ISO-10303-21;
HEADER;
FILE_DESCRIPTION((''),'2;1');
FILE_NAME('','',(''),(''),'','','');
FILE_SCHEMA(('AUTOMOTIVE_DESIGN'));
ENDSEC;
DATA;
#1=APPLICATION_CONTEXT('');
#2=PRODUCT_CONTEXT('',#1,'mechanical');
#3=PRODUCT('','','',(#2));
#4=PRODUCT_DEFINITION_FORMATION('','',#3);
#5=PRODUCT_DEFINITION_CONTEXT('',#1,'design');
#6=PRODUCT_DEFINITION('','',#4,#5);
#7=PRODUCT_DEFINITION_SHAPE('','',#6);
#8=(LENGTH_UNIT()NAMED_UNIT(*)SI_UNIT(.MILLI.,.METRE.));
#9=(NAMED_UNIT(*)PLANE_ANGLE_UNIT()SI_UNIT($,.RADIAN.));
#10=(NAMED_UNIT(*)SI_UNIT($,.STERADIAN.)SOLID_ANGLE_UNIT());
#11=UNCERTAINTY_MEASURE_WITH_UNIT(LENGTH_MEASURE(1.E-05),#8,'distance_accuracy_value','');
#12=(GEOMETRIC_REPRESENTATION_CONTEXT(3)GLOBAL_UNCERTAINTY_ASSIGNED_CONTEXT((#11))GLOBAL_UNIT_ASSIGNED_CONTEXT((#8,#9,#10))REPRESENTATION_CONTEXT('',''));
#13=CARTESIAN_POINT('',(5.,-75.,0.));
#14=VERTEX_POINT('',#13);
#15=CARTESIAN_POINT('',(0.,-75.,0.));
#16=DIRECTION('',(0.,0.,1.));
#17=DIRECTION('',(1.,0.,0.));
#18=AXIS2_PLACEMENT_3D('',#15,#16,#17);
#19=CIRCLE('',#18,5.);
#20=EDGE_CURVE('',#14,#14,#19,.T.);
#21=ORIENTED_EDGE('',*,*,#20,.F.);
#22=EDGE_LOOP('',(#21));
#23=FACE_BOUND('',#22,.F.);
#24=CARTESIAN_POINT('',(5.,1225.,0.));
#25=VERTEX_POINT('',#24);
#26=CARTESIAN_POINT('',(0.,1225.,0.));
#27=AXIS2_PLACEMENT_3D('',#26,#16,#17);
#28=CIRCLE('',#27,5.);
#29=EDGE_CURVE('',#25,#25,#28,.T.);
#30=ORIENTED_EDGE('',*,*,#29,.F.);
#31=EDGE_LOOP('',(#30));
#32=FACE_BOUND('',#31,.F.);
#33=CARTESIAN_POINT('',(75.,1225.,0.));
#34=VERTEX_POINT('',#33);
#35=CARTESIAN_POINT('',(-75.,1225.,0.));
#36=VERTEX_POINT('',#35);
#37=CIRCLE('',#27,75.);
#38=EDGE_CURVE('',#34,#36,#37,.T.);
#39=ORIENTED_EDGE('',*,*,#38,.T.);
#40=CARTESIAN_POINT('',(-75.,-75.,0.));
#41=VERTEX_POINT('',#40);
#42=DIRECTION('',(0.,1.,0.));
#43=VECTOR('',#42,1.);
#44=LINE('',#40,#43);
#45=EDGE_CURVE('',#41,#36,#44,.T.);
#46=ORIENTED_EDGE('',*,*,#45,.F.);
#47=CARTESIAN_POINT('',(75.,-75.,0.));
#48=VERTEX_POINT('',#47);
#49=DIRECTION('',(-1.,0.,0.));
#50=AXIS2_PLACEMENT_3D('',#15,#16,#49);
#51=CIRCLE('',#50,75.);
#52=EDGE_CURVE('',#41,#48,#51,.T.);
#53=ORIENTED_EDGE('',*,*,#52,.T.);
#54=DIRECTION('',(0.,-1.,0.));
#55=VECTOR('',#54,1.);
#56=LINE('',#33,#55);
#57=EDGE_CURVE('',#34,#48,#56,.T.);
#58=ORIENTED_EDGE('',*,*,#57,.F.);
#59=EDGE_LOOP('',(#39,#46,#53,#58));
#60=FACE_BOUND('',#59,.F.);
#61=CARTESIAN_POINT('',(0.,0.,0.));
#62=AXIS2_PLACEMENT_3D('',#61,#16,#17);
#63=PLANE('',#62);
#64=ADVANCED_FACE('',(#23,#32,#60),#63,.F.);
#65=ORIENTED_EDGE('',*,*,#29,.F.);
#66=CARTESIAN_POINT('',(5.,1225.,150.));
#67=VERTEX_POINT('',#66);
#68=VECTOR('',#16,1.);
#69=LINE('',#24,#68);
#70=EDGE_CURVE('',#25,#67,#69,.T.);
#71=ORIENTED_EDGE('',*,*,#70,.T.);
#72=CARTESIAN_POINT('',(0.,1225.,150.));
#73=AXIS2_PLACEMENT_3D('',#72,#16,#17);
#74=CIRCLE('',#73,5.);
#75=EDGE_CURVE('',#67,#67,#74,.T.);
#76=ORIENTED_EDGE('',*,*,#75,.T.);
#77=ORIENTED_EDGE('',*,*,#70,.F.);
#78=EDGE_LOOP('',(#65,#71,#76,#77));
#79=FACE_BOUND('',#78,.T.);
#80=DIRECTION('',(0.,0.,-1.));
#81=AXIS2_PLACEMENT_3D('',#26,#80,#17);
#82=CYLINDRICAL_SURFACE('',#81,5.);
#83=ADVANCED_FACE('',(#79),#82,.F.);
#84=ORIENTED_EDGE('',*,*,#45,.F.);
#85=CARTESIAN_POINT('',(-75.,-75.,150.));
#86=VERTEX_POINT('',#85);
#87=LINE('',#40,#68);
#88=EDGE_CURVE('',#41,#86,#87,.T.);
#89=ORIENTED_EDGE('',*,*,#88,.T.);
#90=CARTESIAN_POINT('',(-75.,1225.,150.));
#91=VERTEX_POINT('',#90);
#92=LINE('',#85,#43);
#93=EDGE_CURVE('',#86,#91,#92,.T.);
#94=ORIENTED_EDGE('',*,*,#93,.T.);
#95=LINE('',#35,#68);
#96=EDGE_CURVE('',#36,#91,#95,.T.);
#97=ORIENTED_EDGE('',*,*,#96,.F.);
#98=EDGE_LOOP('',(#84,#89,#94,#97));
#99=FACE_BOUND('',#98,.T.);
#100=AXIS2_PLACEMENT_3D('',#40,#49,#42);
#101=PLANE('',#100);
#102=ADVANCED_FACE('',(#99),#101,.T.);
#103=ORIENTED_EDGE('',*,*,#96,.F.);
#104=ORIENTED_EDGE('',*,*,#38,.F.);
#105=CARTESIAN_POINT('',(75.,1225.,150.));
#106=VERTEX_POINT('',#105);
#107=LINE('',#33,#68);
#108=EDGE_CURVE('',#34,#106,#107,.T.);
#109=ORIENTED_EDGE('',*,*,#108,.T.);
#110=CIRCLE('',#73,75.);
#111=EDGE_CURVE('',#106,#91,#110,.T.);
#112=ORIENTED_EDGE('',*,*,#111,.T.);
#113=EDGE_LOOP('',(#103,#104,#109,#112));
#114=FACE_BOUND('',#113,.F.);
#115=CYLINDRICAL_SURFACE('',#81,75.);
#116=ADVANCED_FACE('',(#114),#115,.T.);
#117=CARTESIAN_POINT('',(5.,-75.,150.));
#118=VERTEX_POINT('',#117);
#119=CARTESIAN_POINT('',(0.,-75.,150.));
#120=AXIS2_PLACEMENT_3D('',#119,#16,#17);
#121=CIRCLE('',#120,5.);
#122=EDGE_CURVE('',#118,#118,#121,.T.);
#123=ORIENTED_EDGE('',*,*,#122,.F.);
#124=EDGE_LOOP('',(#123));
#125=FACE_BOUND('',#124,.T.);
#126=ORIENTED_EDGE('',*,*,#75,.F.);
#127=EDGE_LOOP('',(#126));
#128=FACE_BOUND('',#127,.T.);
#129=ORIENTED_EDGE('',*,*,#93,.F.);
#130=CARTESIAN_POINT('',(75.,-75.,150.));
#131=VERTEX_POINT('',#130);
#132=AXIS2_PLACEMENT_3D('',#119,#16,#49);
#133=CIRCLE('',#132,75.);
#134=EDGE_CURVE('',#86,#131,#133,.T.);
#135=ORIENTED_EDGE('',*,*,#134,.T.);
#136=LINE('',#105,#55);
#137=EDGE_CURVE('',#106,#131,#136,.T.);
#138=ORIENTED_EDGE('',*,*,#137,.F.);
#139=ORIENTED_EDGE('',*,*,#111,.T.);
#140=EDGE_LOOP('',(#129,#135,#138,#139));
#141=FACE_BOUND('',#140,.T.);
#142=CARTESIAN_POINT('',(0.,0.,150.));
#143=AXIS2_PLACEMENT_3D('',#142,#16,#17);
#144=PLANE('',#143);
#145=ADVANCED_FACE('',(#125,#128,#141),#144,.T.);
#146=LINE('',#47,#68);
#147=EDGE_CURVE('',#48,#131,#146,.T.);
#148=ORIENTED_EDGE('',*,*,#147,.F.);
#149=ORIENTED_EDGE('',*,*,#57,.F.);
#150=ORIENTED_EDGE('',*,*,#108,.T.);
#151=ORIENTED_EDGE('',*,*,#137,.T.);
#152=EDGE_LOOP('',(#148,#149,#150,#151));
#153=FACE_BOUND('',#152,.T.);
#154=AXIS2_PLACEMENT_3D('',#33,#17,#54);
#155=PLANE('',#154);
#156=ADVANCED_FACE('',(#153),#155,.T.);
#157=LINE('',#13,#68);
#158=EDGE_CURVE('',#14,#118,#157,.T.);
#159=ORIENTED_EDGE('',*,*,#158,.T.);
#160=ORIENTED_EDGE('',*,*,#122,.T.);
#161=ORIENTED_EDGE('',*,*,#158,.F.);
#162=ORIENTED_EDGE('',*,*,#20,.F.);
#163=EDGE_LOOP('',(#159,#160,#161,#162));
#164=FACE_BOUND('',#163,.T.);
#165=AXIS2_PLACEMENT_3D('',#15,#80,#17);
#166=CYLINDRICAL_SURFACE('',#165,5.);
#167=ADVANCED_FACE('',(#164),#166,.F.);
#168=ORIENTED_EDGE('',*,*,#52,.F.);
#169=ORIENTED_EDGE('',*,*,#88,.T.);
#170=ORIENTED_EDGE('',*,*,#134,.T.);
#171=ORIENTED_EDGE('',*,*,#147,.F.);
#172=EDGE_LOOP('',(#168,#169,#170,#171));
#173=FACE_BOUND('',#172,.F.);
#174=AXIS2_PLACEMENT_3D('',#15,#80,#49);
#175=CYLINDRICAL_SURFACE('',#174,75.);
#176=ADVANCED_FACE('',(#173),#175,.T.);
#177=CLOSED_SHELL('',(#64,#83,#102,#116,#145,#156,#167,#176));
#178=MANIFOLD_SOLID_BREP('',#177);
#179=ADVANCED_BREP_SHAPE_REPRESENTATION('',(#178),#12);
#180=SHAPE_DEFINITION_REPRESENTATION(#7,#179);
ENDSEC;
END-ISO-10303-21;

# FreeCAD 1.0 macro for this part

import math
import FreeCAD as App
import Part
import Sketcher
Q = App.Units.Quantity

doc = App.newDocument("Part")
body = doc.addObject("PartDesign::Body", "Body")

sketch1 = doc.addObject("Sketcher::SketchObject", "Sketch")
body.addObject(sketch1)
sketch1.AttachmentSupport = (doc.XY_Plane, [""])
sketch1.MapMode = "FlatFace"
sketch1.addGeometry(Part.LineSegment(App.Vector(-75, 1225, 0), App.Vector(-75, -75, 0)), False)
sketch1.addGeometry(Part.ArcOfCircle(Part.Circle(App.Vector(0, -75, 0), App.Vector(0, 0, 1), 75), math.radians(180), math.radians(360)), False)
sketch1.addGeometry(Part.LineSegment(App.Vector(75, -75, 0), App.Vector(75, 1225, 0)), False)
sketch1.addGeometry(Part.ArcOfCircle(Part.Circle(App.Vector(0, 1225, 0), App.Vector(0, 0, 1), 75), math.radians(0), math.radians(180)), False)
sketch1.addGeometry(Part.Circle(App.Vector(0, -75, 0), App.Vector(0, 0, 1), 5), False)
sketch1.addGeometry(Part.Circle(App.Vector(0, 1225, 0), App.Vector(0, 0, 1), 5), False)
sketch1.addConstraint(Sketcher.Constraint("Tangent", 0, 2, 1, 1))
sketch1.addConstraint(Sketcher.Constraint("Tangent", 1, 2, 2, 1))
sketch1.addConstraint(Sketcher.Constraint("Tangent", 2, 2, 3, 1))
sketch1.addConstraint(Sketcher.Constraint("Tangent", 3, 2, 0, 1))
sketch1.addConstraint(Sketcher.Constraint("Vertical", 0))
sketch1.addConstraint(Sketcher.Constraint("Vertical", 2))
sketch1.addConstraint(Sketcher.Constraint("Coincident", 4, 3, 1, 3))
sketch1.addConstraint(Sketcher.Constraint("Coincident", 5, 3, 3, 3))
sketch1.addConstraint(Sketcher.Constraint("Equal", 4, 5))
sketch1.addConstraint(Sketcher.Constraint("PointOnObject", 1, 3, -2))
sketch1.addConstraint(Sketcher.Constraint("Diameter", 4, Q("10 mm")))
sketch1.addConstraint(Sketcher.Constraint("Radius", 1, Q("75 mm")))
sketch1.addConstraint(Sketcher.Constraint("DistanceY", 0, 2, 0, 1, Q("1300 mm")))
sketch1.addConstraint(Sketcher.Constraint("DistanceY", 1, 3, -1, 1, Q("75 mm")))
pad1 = doc.addObject("PartDesign::Pad", "Pad")
body.addObject(pad1)
pad1.Profile = sketch1
pad1.Length = 150

doc.recompute()
